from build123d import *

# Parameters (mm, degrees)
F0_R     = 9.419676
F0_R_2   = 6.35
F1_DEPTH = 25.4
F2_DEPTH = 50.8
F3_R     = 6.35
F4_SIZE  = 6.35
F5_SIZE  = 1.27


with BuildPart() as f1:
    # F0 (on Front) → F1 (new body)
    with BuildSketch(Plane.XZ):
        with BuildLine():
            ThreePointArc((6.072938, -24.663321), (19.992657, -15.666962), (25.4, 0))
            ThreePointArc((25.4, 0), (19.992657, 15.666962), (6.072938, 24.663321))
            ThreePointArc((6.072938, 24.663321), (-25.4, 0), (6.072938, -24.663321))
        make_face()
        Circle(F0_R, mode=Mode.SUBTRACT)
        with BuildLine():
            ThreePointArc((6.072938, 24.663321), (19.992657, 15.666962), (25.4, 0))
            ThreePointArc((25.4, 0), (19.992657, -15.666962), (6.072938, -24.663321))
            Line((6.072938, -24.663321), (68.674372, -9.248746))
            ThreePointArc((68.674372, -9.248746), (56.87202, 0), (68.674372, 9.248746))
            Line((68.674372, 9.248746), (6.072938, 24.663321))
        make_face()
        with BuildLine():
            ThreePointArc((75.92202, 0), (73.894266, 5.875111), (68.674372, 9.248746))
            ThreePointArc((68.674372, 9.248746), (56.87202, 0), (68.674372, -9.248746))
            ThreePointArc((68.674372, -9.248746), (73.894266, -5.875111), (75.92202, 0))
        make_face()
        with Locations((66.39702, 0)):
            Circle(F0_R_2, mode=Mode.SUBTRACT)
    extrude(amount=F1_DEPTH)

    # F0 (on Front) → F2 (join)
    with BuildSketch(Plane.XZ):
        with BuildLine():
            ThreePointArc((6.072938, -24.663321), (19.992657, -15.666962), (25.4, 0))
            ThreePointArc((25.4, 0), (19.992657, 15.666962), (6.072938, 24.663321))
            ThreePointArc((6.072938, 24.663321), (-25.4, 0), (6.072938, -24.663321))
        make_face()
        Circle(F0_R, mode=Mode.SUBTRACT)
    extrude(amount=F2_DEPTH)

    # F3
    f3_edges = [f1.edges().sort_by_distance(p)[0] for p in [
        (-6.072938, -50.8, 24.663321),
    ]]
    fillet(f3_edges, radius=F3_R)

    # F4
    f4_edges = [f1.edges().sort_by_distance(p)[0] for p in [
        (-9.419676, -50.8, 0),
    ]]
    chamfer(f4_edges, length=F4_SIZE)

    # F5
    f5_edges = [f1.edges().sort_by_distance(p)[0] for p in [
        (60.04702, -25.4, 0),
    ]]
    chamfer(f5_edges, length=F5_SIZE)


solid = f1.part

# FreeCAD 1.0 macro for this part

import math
import FreeCAD as App
import Part
import Sketcher
from FreeCAD import Vector
Q = App.Units.Quantity


def edges_at(feature, points):
    """Names of the edges that pass closest to the given points."""
    edges = feature.Shape.Edges
    near = lambda p: min(range(len(edges)), key=lambda i: edges[i].distToShape(Part.Vertex(*p))[0])
    return sorted({f"Edge{near(p) + 1}" for p in points})

doc = App.newDocument("Part")
body = doc.addObject("PartDesign::Body", "Body")

# Sketch on XZ plane
sketch1 = body.newObject("Sketcher::SketchObject", "Sketch")
sketch1.AttachmentSupport = (doc.getObject("XZ_Plane"), [""])
sketch1.MapMode = "FlatFace"
sketch1.addGeometry(Part.ArcOfCircle(Part.Circle(Vector(0, 0, 0), Vector(0, 0, 1), 25.4), math.radians(76.167041), math.radians(283.832959)), False)
sketch1.addGeometry(Part.LineSegment(Vector(6.072938, -24.663321, 0), Vector(68.674372, -9.248746, 0)), False)
sketch1.addGeometry(Part.ArcOfCircle(Part.Circle(Vector(66.397019, 0, 0), Vector(0, 0, 1), 9.525001), math.radians(-76.167036), math.radians(-0.000001)), False)
sketch1.addGeometry(Part.ArcOfCircle(Part.Circle(Vector(66.397019, 0, 0), Vector(0, 0, 1), 9.525001), math.radians(0.000001), math.radians(76.167036)), False)
sketch1.addGeometry(Part.LineSegment(Vector(68.674372, 9.248746, 0), Vector(6.072938, 24.663321, 0)), False)
sketch1.addGeometry(Part.Circle(Vector(0, 0, 0), Vector(0, 0, 1), 9.419676), False)
sketch1.addGeometry(Part.Circle(Vector(66.39702, 0, 0), Vector(0, 0, 1), 6.35), False)
sketch1.addConstraint(Sketcher.Constraint("Tangent", 0, 2, 1, 1))
sketch1.addConstraint(Sketcher.Constraint("Tangent", 1, 2, 2, 1))
sketch1.addConstraint(Sketcher.Constraint("Tangent", 2, 2, 3, 1))
sketch1.addConstraint(Sketcher.Constraint("Tangent", 3, 2, 4, 1))
sketch1.addConstraint(Sketcher.Constraint("Tangent", 4, 2, 0, 1))
sketch1.addConstraint(Sketcher.Constraint("Coincident", 0, 3, -1, 1))
sketch1.addConstraint(Sketcher.Constraint("Coincident", 5, 3, -1, 1))
sketch1.addConstraint(Sketcher.Constraint("Coincident", 6, 3, 2, 3))
sketch1.addConstraint(Sketcher.Constraint("Equal", 2, 3))
sketch1.addConstraint(Sketcher.Constraint("PointOnObject", 2, 3, -1))
sketch1.addConstraint(Sketcher.Constraint("PointOnObject", 2, 2, -1))
sketch1.addConstraint(Sketcher.Constraint("Radius", 0, Q("1 in")))
sketch1.addConstraint(Sketcher.Constraint("Diameter", 6, Q("0.5 in")))
sketch1.addConstraint(Sketcher.Constraint("Radius", 2, Q("0.375 in")))
sketch1.addConstraint(Sketcher.Constraint("Diameter", 5, 18.839352))
sketch1.addConstraint(Sketcher.Constraint("Distance", 1, 64.471301))
pad1 = body.newObject("PartDesign::Pad", "Pad")
pad1.Profile = sketch1
pad1.Length = Q("1 in")

# Sketch on XZ plane
sketch2 = body.newObject("Sketcher::SketchObject", "Sketch001")
sketch2.AttachmentSupport = (doc.getObject("XZ_Plane"), [""])
sketch2.MapMode = "FlatFace"
sketch2.addGeometry(Part.ArcOfCircle(Part.Circle(Vector(0.000003, -0.000002, 0), Vector(0, 0, 1), 25.399997), math.radians(-76.167047), math.radians(0.000005)), False)
sketch2.addGeometry(Part.ArcOfCircle(Part.Circle(Vector(0.000003, 0.000002, 0), Vector(0, 0, 1), 25.399997), math.radians(-0.000005), math.radians(76.167047)), False)
sketch2.addGeometry(Part.ArcOfCircle(Part.Circle(Vector(0, 0, 0), Vector(0, 0, 1), 25.4), math.radians(76.167041), math.radians(283.832959)), False)
sketch2.addGeometry(Part.Circle(Vector(0, 0, 0), Vector(0, 0, 1), 9.419676), False)
sketch2.addConstraint(Sketcher.Constraint("Tangent", 0, 2, 1, 1))
sketch2.addConstraint(Sketcher.Constraint("Tangent", 1, 2, 2, 1))
sketch2.addConstraint(Sketcher.Constraint("Tangent", 2, 2, 0, 1))
sketch2.addConstraint(Sketcher.Constraint("Coincident", 0, 3, -1, 1))
sketch2.addConstraint(Sketcher.Constraint("Coincident", 3, 3, -1, 1))
sketch2.addConstraint(Sketcher.Constraint("PointOnObject", 0, 2, -1))
sketch2.addConstraint(Sketcher.Constraint("Vertical", 1, 2, 2, 2))
sketch2.addConstraint(Sketcher.Constraint("Radius", 0, Q("0.9999999 in")))
sketch2.addConstraint(Sketcher.Constraint("Diameter", 3, 18.839352))
sketch2.addConstraint(Sketcher.Constraint("DistanceX", -1, 1, 1, 2, 6.072938))
pad2 = body.newObject("PartDesign::Pad", "Pad001")
pad2.Profile = sketch2
pad2.Length = Q("2 in")
doc.recompute()

fillet = body.newObject("PartDesign::Fillet", "Fillet")
fillet.Base = (pad2, edges_at(pad2, [(-25.4, -50.8, 0)]))
fillet.Radius = Q("0.25 in")
doc.recompute()

chamfer = body.newObject("PartDesign::Chamfer", "Chamfer")
chamfer.Base = (fillet, edges_at(fillet, [(-9.42, -50.8, 0)]))
chamfer.Size = Q("0.25 in")
doc.recompute()

chamfer2 = body.newObject("PartDesign::Chamfer", "Chamfer001")
chamfer2.Base = (chamfer, edges_at(chamfer, [(60.047, -25.4, 0)]))
chamfer2.Size = Q("0.05 in")

doc.recompute()
